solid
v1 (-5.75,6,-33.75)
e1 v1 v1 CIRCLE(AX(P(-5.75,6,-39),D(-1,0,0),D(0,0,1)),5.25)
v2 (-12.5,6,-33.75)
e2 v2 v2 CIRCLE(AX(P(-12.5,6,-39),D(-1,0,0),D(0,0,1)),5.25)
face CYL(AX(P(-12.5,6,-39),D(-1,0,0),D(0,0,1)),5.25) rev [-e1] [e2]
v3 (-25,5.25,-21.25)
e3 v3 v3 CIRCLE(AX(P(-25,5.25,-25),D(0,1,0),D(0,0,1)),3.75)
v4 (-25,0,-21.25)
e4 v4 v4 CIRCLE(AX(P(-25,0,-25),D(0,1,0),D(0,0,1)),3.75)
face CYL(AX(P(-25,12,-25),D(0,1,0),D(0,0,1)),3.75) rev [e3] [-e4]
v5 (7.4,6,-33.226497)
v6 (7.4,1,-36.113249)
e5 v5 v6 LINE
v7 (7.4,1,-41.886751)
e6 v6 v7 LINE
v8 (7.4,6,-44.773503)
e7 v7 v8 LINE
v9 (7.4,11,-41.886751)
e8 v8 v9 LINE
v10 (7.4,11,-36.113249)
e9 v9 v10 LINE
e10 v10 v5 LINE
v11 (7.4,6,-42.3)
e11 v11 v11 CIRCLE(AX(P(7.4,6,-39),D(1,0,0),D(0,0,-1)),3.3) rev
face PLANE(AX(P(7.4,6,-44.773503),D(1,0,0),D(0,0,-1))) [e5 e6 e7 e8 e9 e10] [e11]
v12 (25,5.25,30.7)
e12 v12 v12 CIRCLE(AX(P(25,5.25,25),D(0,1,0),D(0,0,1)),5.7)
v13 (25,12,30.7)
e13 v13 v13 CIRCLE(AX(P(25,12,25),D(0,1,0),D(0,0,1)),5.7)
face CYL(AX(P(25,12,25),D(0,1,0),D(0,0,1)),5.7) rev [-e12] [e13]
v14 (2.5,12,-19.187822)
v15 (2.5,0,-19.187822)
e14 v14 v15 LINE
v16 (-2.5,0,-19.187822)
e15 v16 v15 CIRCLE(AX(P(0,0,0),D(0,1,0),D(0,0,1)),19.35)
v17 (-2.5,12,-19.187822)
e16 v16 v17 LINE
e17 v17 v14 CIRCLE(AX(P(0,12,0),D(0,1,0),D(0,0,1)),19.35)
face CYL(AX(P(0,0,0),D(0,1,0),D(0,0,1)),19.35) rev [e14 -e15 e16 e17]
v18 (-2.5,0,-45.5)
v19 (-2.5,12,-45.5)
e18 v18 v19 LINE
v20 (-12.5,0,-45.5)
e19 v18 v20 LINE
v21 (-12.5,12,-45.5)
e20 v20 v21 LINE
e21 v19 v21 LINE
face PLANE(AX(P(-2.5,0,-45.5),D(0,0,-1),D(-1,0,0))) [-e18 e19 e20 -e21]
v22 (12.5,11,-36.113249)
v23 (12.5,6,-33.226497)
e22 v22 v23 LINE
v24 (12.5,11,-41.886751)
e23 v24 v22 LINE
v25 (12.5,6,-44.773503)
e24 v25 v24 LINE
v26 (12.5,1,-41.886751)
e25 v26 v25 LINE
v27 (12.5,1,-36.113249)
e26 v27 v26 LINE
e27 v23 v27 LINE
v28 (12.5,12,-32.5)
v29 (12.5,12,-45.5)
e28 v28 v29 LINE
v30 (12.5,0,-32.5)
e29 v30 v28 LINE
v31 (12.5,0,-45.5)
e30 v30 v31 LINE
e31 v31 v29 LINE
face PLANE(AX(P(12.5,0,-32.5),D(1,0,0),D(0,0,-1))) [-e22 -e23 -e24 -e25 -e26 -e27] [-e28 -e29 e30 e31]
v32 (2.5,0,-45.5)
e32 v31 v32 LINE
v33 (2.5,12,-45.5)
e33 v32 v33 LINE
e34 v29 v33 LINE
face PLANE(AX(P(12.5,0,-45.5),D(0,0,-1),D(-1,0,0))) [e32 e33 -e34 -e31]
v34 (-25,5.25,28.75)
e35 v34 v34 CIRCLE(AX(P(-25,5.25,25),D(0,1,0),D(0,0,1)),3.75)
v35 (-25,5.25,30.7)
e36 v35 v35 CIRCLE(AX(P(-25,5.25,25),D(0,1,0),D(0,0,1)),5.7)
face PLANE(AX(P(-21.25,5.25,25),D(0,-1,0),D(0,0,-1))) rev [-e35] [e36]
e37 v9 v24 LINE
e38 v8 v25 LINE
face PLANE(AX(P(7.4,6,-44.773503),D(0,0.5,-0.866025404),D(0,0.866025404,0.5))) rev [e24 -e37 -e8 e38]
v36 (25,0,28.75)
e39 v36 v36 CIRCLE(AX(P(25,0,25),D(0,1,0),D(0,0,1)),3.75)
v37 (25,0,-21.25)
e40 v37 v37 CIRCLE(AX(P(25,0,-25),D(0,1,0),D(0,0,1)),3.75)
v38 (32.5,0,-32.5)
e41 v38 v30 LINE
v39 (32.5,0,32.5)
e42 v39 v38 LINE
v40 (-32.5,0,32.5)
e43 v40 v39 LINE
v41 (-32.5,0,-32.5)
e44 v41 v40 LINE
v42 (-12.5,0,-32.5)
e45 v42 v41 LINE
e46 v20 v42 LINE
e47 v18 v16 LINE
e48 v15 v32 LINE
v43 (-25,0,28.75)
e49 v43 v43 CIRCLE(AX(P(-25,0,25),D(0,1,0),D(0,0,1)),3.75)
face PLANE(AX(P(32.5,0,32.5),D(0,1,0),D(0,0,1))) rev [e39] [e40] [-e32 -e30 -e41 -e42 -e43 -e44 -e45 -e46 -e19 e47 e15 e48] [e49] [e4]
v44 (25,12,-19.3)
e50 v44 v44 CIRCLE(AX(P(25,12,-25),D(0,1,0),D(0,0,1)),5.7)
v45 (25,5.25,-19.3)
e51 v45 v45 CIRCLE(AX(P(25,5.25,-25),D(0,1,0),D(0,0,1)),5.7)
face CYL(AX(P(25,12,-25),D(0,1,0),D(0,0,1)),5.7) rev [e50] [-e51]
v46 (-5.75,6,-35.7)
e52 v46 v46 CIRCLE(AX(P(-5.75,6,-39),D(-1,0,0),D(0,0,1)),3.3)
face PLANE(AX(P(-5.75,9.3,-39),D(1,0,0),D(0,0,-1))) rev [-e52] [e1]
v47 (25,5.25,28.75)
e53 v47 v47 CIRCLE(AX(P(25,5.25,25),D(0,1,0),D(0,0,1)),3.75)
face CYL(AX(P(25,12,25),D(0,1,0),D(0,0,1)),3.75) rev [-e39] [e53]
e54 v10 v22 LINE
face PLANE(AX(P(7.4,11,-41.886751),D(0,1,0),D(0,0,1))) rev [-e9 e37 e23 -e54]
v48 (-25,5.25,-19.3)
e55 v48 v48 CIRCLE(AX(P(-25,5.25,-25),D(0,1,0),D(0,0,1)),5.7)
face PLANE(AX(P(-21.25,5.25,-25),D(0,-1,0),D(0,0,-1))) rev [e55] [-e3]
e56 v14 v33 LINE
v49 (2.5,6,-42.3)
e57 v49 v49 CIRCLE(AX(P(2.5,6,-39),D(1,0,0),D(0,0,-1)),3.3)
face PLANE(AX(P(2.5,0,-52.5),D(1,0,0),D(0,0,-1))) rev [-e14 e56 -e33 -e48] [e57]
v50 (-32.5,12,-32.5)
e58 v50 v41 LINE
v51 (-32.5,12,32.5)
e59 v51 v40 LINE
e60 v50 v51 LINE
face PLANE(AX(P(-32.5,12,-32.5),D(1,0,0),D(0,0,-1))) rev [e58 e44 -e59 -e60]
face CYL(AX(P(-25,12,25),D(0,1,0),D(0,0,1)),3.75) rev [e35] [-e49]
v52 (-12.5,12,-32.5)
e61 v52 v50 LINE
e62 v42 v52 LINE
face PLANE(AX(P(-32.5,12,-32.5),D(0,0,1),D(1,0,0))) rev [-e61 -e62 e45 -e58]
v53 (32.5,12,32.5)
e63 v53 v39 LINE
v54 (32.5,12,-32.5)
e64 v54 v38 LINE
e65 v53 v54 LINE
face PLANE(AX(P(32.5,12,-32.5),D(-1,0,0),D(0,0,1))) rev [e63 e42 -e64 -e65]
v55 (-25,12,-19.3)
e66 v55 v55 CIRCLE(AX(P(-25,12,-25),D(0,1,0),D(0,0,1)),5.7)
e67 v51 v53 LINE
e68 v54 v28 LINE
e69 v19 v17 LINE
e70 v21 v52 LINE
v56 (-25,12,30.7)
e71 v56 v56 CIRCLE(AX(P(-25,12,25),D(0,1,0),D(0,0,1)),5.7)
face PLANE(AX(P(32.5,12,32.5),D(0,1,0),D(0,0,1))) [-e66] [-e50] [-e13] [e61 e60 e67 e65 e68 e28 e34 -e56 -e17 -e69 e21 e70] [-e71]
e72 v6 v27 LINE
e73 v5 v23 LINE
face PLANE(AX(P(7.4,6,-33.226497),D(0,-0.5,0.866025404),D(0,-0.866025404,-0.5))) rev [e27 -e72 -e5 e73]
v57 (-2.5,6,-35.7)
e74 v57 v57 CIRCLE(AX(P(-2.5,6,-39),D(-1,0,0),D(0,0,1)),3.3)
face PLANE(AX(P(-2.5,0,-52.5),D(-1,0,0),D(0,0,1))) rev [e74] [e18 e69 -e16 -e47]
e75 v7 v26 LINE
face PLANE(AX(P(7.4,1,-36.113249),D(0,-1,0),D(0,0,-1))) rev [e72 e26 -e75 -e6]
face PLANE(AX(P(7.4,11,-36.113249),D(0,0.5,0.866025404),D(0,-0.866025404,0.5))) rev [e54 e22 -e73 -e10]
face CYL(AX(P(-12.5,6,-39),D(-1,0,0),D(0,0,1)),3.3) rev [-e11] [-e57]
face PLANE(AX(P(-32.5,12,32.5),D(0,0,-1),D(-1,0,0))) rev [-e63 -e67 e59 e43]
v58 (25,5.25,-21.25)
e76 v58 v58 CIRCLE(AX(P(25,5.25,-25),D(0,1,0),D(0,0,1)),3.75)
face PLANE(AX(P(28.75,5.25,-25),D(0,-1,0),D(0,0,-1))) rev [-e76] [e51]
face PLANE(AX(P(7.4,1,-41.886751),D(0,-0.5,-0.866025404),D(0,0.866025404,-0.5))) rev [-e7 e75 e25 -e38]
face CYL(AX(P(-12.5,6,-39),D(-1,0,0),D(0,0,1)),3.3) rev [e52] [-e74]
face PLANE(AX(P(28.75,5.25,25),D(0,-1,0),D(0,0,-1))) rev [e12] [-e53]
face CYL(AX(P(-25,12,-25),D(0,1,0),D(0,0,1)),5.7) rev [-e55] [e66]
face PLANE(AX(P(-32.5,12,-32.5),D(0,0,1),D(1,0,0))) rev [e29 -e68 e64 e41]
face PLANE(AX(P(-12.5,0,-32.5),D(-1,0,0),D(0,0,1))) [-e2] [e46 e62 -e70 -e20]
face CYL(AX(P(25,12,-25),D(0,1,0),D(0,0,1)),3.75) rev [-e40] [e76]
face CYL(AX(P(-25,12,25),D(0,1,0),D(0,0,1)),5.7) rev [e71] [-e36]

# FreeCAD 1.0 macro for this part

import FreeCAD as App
import Part
import Sketcher
from FreeCAD import Vector
Q = App.Units.Quantity

doc = App.newDocument("Part")
body = doc.addObject("PartDesign::Body", "Body")

# Sketch on XZ plane
sketch1 = body.newObject("Sketcher::SketchObject", "Sketch")
sketch1.AttachmentSupport = (doc.getObject("XZ_Plane"), [""])
sketch1.MapMode = "FlatFace"
sketch1.addGeometry([
    Part.LineSegment(Vector(-32, -32, 0), Vector(-32, 32, 0)),
    Part.LineSegment(Vector(-32, 32, 0), Vector(32, 32, 0)),
    Part.LineSegment(Vector(32, 32, 0), Vector(32, -32, 0)),
    Part.LineSegment(Vector(32, -32, 0), Vector(-32, -32, 0)),
], False)
sketch1.addConstraint([
    Sketcher.Constraint("Coincident", 0, 2, 1, 1),
    Sketcher.Constraint("Coincident", 1, 2, 2, 1),
    Sketcher.Constraint("Coincident", 2, 2, 3, 1),
    Sketcher.Constraint("Coincident", 3, 2, 0, 1),
    Sketcher.Constraint("Vertical", 0),
    Sketcher.Constraint("Horizontal", 1),
    Sketcher.Constraint("Vertical", 2),
    Sketcher.Constraint("Horizontal", 3),
    Sketcher.Constraint("Symmetric", 0, 2, 2, 2, -1, 1),
    Sketcher.Constraint("Equal", 3, 0),
    Sketcher.Constraint("DistanceX", 1, 1, 1, 2, 65.0),
])
pad1 = body.newObject("PartDesign::Pad", "Pad")
pad1.Profile = sketch1
pad1.Length = 12
pad1.Reversed = True

# Sketch on XZ plane
sketch2 = body.newObject("Sketcher::SketchObject", "Sketch001")
sketch2.AttachmentSupport = (doc.getObject("XZ_Plane"), [""])
sketch2.MapMode = "FlatFace"
sketch2.AttachmentOffset = App.Placement(Vector(0, 0, -12), App.Rotation())
sketch2.addGeometry(Part.Circle(Vector(0, 0, 0), Vector(0, 0, 1), 19), False)
sketch2.addConstraint([
    Sketcher.Constraint("Coincident", 0, 3, -1, 1),
    Sketcher.Constraint("Diameter", 0, 38.7),
])
pocket1 = body.newObject("PartDesign::Pocket", "Pocket")
pocket1.Profile = sketch2
pocket1.Length = 12
pocket1.Reversed = True

# Sketch on XZ plane
sketch3 = body.newObject("Sketcher::SketchObject", "Sketch002")
sketch3.AttachmentSupport = (doc.getObject("XZ_Plane"), [""])
sketch3.MapMode = "FlatFace"
sketch3.AttachmentOffset = App.Placement(Vector(0, 0, -12), App.Rotation())
sketch3.addGeometry([
    Part.LineSegment(Vector(2, -12, 0), Vector(2, -52, 0)),
    Part.LineSegment(Vector(2, -52, 0), Vector(-2, -52, 0)),
    Part.LineSegment(Vector(-2, -52, 0), Vector(-2, -12, 0)),
    Part.LineSegment(Vector(-2, -12, 0), Vector(2, -12, 0)),
], False)
sketch3.addConstraint([
    Sketcher.Constraint("Coincident", 0, 2, 1, 1),
    Sketcher.Constraint("Coincident", 1, 2, 2, 1),
    Sketcher.Constraint("Coincident", 2, 2, 3, 1),
    Sketcher.Constraint("Coincident", 3, 2, 0, 1),
    Sketcher.Constraint("Vertical", 0),
    Sketcher.Constraint("Horizontal", 1),
    Sketcher.Constraint("Vertical", 2),
    Sketcher.Constraint("Horizontal", 3),
    Sketcher.Constraint("DistanceX", 1, 2, 1, 1, 5.0),
    Sketcher.Constraint("DistanceY", 0, 2, 0, 1, 40.0),
    Sketcher.Constraint("DistanceX", -1, 1, 0, 2, 2.5),
    Sketcher.Constraint("DistanceY", 0, 2, -1, 1, 52.5),
])
pocket2 = body.newObject("PartDesign::Pocket", "Pocket001")
pocket2.Profile = sketch3
pocket2.Length = 12
pocket2.Reversed = True

# Sketch on XZ plane
sketch4 = body.newObject("Sketcher::SketchObject", "Sketch003")
sketch4.AttachmentSupport = (doc.getObject("XZ_Plane"), [""])
sketch4.MapMode = "FlatFace"
sketch4.AttachmentOffset = App.Placement(Vector(0, 0, -12), App.Rotation())
sketch4.addGeometry([
    Part.LineSegment(Vector(-2, -32, 0), Vector(-2, -46, 0)),
    Part.LineSegment(Vector(-2, -46, 0), Vector(-12, -46, 0)),
    Part.LineSegment(Vector(-12, -46, 0), Vector(-12, -32, 0)),
    Part.LineSegment(Vector(-12, -32, 0), Vector(-2, -32, 0)),
], False)
sketch4.addConstraint([
    Sketcher.Constraint("Coincident", 0, 2, 1, 1),
    Sketcher.Constraint("Coincident", 1, 2, 2, 1),
    Sketcher.Constraint("Coincident", 2, 2, 3, 1),
    Sketcher.Constraint("Coincident", 3, 2, 0, 1),
    Sketcher.Constraint("Vertical", 0),
    Sketcher.Constraint("Horizontal", 1),
    Sketcher.Constraint("Vertical", 2),
    Sketcher.Constraint("Horizontal", 3),
    Sketcher.Constraint("DistanceX", 1, 2, 1, 1, 10.0),
    Sketcher.Constraint("DistanceY", 0, 2, 0, 1, 13.0),
    Sketcher.Constraint("DistanceX", 0, 2, -1, 1, 2.5),
    Sketcher.Constraint("DistanceY", 0, 2, -1, 1, 45.5),
])
pad2 = body.newObject("PartDesign::Pad", "Pad001")
pad2.Profile = sketch4
pad2.Length = 12
doc.recompute()

linearpattern = body.newObject("PartDesign::LinearPattern", "LinearPattern")
linearpattern.Originals = [pad2]
linearpattern.Direction = (doc.getObject("X_Axis"), [""])
linearpattern.Mode = "offset"
linearpattern.Offset = 15
linearpattern.Occurrences = 2
body.Tip = linearpattern

# Sketch on YZ plane
sketch5 = body.newObject("Sketcher::SketchObject", "Sketch004")
sketch5.AttachmentSupport = (doc.getObject("YZ_Plane"), [""])
sketch5.MapMode = "FlatFace"
sketch5.AttachmentOffset = App.Placement(Vector(0, 0, -12.5), App.Rotation())
sketch5.addGeometry(Part.Circle(Vector(6, -39, 0), Vector(0, 0, 1), 3.3), False)
sketch5.addConstraint([
    Sketcher.Constraint("Diameter", 0, 6.6),
    Sketcher.Constraint("DistanceX", -1, 1, 0, 3, 6.0),
    Sketcher.Constraint("DistanceY", 0, 3, -1, 1, 39.0),
])
doc.recompute()
hole = body.newObject("PartDesign::Hole", "Hole")
hole.Profile = sketch5
hole.ThreadType = "None"
hole.Diameter = 6.6
hole.DepthType = "ThroughAll"
hole.HoleCutType = "Counterbore"
hole.HoleCutDiameter = 10.5
hole.HoleCutDepth = 6.75
hole.Reversed = True

# Sketch on YZ plane
sketch6 = body.newObject("Sketcher::SketchObject", "Sketch005")
sketch6.AttachmentSupport = (doc.getObject("YZ_Plane"), [""])
sketch6.MapMode = "FlatFace"
sketch6.AttachmentOffset = App.Placement(Vector(0, 0, 12.5), App.Rotation())
sketch6.addGeometry([
    Part.LineSegment(Vector(6, -45, 0), Vector(11, -42, 0)),  # 0
    Part.LineSegment(Vector(11, -42, 0), Vector(11, -36, 0)),  # 1
    Part.LineSegment(Vector(11, -36, 0), Vector(6, -33, 0)),  # 2
    Part.LineSegment(Vector(6, -33, 0), Vector(1, -36, 0)),  # 3
    Part.LineSegment(Vector(1, -36, 0), Vector(1, -42, 0)),  # 4
    Part.LineSegment(Vector(1, -42, 0), Vector(6, -45, 0)),  # 5
], False)
sketch6.addConstraint([
    Sketcher.Constraint("Coincident", 0, 2, 1, 1),
    Sketcher.Constraint("Coincident", 1, 2, 2, 1),
    Sketcher.Constraint("Coincident", 2, 2, 3, 1),
    Sketcher.Constraint("Coincident", 3, 2, 4, 1),
    Sketcher.Constraint("Coincident", 4, 2, 5, 1),
    Sketcher.Constraint("Coincident", 5, 2, 0, 1),
    Sketcher.Constraint("Vertical", 1),
    Sketcher.Constraint("Vertical", 4),
    Sketcher.Constraint("Parallel", 0, 3),
    Sketcher.Constraint("Parallel", 2, 5),
    Sketcher.Constraint("Horizontal", 1, 2, 3, 2),
    Sketcher.Constraint("Horizontal", 0, 2, 4, 2),
    Sketcher.Constraint("Vertical", 2, 2, 5, 2),
    Sketcher.Constraint("Angle", 0, Q("30 deg")),
    Sketcher.Constraint("DistanceX", -1, 1, 0, 2, 11.0),
    Sketcher.Constraint("DistanceX", -1, 1, 2, 2, 6.0),
    Sketcher.Constraint("DistanceY", 1, 1, 1, 2, 5.773503),
    Sketcher.Constraint("DistanceY", 0, 2, -1, 1, 41.886751),
])
pocket3 = body.newObject("PartDesign::Pocket", "Pocket002")
pocket3.Profile = sketch6
pocket3.Length = 5.1

# Sketch on XZ plane
sketch7 = body.newObject("Sketcher::SketchObject", "Sketch006")
sketch7.AttachmentSupport = (doc.getObject("XZ_Plane"), [""])
sketch7.MapMode = "FlatFace"
sketch7.AttachmentOffset = App.Placement(Vector(0, 0, -12), App.Rotation())
sketch7.addGeometry(Part.Circle(Vector(-25, -25, 0), Vector(0, 0, 1), 3.8), False)
sketch7.addConstraint([
    Sketcher.Constraint("Diameter", 0, 7.5),
    Sketcher.Constraint("DistanceX", 0, 3, -1, 1, 25.0),
    Sketcher.Constraint("DistanceY", 0, 3, -1, 1, 25.0),
])
doc.recompute()
hole2 = body.newObject("PartDesign::Hole", "Hole001")
hole2.Profile = sketch7
hole2.ThreadType = "None"
hole2.Diameter = 7.5
hole2.DepthType = "ThroughAll"
hole2.HoleCutType = "Counterbore"
hole2.HoleCutDiameter = 11.4
hole2.HoleCutDepth = 6.75
hole2.Reversed = True

# Sketch on XZ plane
sketch8 = body.newObject("Sketcher::SketchObject", "Sketch007")
sketch8.AttachmentSupport = (doc.getObject("XZ_Plane"), [""])
sketch8.MapMode = "FlatFace"
sketch8.AttachmentOffset = App.Placement(Vector(0, 0, -12), App.Rotation())
sketch8.addGeometry(Part.Circle(Vector(25, -25, 0), Vector(0, 0, 1), 3.8), False)
sketch8.addConstraint([
    Sketcher.Constraint("Diameter", 0, 7.5),
    Sketcher.Constraint("DistanceX", -1, 1, 0, 3, 25.0),
    Sketcher.Constraint("DistanceY", 0, 3, -1, 1, 25.0),
])
doc.recompute()
hole3 = body.newObject("PartDesign::Hole", "Hole002")
hole3.Profile = sketch8
hole3.ThreadType = "None"
hole3.Diameter = 7.5
hole3.DepthType = "ThroughAll"
hole3.HoleCutType = "Counterbore"
hole3.HoleCutDiameter = 11.4
hole3.HoleCutDepth = 6.75
hole3.Reversed = True

# Sketch on XZ plane
sketch9 = body.newObject("Sketcher::SketchObject", "Sketch008")
sketch9.AttachmentSupport = (doc.getObject("XZ_Plane"), [""])
sketch9.MapMode = "FlatFace"
sketch9.AttachmentOffset = App.Placement(Vector(0, 0, -12), App.Rotation())
sketch9.addGeometry(Part.Circle(Vector(25, 25, 0), Vector(0, 0, 1), 3.8), False)
sketch9.addConstraint([
    Sketcher.Constraint("Diameter", 0, 7.5),
    Sketcher.Constraint("DistanceX", -1, 1, 0, 3, 25.0),
    Sketcher.Constraint("DistanceY", -1, 1, 0, 3, 25.0),
])
doc.recompute()
hole4 = body.newObject("PartDesign::Hole", "Hole003")
hole4.Profile = sketch9
hole4.ThreadType = "None"
hole4.Diameter = 7.5
hole4.DepthType = "ThroughAll"
hole4.HoleCutType = "Counterbore"
hole4.HoleCutDiameter = 11.4
hole4.HoleCutDepth = 6.75
hole4.Reversed = True

# Sketch on XZ plane
sketch10 = body.newObject("Sketcher::SketchObject", "Sketch009")
sketch10.AttachmentSupport = (doc.getObject("XZ_Plane"), [""])
sketch10.MapMode = "FlatFace"
sketch10.AttachmentOffset = App.Placement(Vector(0, 0, -12), App.Rotation())
sketch10.addGeometry(Part.Circle(Vector(-25, 25, 0), Vector(0, 0, 1), 3.8), False)
sketch10.addConstraint([
    Sketcher.Constraint("Diameter", 0, 7.5),
    Sketcher.Constraint("DistanceX", 0, 3, -1, 1, 25.0),
    Sketcher.Constraint("DistanceY", -1, 1, 0, 3, 25.0),
])
doc.recompute()
hole5 = body.newObject("PartDesign::Hole", "Hole004")
hole5.Profile = sketch10
hole5.ThreadType = "None"
hole5.Diameter = 7.5
hole5.DepthType = "ThroughAll"
hole5.HoleCutType = "Counterbore"
hole5.HoleCutDiameter = 11.4
hole5.HoleCutDepth = 6.75
hole5.Reversed = True

doc.recompute()
